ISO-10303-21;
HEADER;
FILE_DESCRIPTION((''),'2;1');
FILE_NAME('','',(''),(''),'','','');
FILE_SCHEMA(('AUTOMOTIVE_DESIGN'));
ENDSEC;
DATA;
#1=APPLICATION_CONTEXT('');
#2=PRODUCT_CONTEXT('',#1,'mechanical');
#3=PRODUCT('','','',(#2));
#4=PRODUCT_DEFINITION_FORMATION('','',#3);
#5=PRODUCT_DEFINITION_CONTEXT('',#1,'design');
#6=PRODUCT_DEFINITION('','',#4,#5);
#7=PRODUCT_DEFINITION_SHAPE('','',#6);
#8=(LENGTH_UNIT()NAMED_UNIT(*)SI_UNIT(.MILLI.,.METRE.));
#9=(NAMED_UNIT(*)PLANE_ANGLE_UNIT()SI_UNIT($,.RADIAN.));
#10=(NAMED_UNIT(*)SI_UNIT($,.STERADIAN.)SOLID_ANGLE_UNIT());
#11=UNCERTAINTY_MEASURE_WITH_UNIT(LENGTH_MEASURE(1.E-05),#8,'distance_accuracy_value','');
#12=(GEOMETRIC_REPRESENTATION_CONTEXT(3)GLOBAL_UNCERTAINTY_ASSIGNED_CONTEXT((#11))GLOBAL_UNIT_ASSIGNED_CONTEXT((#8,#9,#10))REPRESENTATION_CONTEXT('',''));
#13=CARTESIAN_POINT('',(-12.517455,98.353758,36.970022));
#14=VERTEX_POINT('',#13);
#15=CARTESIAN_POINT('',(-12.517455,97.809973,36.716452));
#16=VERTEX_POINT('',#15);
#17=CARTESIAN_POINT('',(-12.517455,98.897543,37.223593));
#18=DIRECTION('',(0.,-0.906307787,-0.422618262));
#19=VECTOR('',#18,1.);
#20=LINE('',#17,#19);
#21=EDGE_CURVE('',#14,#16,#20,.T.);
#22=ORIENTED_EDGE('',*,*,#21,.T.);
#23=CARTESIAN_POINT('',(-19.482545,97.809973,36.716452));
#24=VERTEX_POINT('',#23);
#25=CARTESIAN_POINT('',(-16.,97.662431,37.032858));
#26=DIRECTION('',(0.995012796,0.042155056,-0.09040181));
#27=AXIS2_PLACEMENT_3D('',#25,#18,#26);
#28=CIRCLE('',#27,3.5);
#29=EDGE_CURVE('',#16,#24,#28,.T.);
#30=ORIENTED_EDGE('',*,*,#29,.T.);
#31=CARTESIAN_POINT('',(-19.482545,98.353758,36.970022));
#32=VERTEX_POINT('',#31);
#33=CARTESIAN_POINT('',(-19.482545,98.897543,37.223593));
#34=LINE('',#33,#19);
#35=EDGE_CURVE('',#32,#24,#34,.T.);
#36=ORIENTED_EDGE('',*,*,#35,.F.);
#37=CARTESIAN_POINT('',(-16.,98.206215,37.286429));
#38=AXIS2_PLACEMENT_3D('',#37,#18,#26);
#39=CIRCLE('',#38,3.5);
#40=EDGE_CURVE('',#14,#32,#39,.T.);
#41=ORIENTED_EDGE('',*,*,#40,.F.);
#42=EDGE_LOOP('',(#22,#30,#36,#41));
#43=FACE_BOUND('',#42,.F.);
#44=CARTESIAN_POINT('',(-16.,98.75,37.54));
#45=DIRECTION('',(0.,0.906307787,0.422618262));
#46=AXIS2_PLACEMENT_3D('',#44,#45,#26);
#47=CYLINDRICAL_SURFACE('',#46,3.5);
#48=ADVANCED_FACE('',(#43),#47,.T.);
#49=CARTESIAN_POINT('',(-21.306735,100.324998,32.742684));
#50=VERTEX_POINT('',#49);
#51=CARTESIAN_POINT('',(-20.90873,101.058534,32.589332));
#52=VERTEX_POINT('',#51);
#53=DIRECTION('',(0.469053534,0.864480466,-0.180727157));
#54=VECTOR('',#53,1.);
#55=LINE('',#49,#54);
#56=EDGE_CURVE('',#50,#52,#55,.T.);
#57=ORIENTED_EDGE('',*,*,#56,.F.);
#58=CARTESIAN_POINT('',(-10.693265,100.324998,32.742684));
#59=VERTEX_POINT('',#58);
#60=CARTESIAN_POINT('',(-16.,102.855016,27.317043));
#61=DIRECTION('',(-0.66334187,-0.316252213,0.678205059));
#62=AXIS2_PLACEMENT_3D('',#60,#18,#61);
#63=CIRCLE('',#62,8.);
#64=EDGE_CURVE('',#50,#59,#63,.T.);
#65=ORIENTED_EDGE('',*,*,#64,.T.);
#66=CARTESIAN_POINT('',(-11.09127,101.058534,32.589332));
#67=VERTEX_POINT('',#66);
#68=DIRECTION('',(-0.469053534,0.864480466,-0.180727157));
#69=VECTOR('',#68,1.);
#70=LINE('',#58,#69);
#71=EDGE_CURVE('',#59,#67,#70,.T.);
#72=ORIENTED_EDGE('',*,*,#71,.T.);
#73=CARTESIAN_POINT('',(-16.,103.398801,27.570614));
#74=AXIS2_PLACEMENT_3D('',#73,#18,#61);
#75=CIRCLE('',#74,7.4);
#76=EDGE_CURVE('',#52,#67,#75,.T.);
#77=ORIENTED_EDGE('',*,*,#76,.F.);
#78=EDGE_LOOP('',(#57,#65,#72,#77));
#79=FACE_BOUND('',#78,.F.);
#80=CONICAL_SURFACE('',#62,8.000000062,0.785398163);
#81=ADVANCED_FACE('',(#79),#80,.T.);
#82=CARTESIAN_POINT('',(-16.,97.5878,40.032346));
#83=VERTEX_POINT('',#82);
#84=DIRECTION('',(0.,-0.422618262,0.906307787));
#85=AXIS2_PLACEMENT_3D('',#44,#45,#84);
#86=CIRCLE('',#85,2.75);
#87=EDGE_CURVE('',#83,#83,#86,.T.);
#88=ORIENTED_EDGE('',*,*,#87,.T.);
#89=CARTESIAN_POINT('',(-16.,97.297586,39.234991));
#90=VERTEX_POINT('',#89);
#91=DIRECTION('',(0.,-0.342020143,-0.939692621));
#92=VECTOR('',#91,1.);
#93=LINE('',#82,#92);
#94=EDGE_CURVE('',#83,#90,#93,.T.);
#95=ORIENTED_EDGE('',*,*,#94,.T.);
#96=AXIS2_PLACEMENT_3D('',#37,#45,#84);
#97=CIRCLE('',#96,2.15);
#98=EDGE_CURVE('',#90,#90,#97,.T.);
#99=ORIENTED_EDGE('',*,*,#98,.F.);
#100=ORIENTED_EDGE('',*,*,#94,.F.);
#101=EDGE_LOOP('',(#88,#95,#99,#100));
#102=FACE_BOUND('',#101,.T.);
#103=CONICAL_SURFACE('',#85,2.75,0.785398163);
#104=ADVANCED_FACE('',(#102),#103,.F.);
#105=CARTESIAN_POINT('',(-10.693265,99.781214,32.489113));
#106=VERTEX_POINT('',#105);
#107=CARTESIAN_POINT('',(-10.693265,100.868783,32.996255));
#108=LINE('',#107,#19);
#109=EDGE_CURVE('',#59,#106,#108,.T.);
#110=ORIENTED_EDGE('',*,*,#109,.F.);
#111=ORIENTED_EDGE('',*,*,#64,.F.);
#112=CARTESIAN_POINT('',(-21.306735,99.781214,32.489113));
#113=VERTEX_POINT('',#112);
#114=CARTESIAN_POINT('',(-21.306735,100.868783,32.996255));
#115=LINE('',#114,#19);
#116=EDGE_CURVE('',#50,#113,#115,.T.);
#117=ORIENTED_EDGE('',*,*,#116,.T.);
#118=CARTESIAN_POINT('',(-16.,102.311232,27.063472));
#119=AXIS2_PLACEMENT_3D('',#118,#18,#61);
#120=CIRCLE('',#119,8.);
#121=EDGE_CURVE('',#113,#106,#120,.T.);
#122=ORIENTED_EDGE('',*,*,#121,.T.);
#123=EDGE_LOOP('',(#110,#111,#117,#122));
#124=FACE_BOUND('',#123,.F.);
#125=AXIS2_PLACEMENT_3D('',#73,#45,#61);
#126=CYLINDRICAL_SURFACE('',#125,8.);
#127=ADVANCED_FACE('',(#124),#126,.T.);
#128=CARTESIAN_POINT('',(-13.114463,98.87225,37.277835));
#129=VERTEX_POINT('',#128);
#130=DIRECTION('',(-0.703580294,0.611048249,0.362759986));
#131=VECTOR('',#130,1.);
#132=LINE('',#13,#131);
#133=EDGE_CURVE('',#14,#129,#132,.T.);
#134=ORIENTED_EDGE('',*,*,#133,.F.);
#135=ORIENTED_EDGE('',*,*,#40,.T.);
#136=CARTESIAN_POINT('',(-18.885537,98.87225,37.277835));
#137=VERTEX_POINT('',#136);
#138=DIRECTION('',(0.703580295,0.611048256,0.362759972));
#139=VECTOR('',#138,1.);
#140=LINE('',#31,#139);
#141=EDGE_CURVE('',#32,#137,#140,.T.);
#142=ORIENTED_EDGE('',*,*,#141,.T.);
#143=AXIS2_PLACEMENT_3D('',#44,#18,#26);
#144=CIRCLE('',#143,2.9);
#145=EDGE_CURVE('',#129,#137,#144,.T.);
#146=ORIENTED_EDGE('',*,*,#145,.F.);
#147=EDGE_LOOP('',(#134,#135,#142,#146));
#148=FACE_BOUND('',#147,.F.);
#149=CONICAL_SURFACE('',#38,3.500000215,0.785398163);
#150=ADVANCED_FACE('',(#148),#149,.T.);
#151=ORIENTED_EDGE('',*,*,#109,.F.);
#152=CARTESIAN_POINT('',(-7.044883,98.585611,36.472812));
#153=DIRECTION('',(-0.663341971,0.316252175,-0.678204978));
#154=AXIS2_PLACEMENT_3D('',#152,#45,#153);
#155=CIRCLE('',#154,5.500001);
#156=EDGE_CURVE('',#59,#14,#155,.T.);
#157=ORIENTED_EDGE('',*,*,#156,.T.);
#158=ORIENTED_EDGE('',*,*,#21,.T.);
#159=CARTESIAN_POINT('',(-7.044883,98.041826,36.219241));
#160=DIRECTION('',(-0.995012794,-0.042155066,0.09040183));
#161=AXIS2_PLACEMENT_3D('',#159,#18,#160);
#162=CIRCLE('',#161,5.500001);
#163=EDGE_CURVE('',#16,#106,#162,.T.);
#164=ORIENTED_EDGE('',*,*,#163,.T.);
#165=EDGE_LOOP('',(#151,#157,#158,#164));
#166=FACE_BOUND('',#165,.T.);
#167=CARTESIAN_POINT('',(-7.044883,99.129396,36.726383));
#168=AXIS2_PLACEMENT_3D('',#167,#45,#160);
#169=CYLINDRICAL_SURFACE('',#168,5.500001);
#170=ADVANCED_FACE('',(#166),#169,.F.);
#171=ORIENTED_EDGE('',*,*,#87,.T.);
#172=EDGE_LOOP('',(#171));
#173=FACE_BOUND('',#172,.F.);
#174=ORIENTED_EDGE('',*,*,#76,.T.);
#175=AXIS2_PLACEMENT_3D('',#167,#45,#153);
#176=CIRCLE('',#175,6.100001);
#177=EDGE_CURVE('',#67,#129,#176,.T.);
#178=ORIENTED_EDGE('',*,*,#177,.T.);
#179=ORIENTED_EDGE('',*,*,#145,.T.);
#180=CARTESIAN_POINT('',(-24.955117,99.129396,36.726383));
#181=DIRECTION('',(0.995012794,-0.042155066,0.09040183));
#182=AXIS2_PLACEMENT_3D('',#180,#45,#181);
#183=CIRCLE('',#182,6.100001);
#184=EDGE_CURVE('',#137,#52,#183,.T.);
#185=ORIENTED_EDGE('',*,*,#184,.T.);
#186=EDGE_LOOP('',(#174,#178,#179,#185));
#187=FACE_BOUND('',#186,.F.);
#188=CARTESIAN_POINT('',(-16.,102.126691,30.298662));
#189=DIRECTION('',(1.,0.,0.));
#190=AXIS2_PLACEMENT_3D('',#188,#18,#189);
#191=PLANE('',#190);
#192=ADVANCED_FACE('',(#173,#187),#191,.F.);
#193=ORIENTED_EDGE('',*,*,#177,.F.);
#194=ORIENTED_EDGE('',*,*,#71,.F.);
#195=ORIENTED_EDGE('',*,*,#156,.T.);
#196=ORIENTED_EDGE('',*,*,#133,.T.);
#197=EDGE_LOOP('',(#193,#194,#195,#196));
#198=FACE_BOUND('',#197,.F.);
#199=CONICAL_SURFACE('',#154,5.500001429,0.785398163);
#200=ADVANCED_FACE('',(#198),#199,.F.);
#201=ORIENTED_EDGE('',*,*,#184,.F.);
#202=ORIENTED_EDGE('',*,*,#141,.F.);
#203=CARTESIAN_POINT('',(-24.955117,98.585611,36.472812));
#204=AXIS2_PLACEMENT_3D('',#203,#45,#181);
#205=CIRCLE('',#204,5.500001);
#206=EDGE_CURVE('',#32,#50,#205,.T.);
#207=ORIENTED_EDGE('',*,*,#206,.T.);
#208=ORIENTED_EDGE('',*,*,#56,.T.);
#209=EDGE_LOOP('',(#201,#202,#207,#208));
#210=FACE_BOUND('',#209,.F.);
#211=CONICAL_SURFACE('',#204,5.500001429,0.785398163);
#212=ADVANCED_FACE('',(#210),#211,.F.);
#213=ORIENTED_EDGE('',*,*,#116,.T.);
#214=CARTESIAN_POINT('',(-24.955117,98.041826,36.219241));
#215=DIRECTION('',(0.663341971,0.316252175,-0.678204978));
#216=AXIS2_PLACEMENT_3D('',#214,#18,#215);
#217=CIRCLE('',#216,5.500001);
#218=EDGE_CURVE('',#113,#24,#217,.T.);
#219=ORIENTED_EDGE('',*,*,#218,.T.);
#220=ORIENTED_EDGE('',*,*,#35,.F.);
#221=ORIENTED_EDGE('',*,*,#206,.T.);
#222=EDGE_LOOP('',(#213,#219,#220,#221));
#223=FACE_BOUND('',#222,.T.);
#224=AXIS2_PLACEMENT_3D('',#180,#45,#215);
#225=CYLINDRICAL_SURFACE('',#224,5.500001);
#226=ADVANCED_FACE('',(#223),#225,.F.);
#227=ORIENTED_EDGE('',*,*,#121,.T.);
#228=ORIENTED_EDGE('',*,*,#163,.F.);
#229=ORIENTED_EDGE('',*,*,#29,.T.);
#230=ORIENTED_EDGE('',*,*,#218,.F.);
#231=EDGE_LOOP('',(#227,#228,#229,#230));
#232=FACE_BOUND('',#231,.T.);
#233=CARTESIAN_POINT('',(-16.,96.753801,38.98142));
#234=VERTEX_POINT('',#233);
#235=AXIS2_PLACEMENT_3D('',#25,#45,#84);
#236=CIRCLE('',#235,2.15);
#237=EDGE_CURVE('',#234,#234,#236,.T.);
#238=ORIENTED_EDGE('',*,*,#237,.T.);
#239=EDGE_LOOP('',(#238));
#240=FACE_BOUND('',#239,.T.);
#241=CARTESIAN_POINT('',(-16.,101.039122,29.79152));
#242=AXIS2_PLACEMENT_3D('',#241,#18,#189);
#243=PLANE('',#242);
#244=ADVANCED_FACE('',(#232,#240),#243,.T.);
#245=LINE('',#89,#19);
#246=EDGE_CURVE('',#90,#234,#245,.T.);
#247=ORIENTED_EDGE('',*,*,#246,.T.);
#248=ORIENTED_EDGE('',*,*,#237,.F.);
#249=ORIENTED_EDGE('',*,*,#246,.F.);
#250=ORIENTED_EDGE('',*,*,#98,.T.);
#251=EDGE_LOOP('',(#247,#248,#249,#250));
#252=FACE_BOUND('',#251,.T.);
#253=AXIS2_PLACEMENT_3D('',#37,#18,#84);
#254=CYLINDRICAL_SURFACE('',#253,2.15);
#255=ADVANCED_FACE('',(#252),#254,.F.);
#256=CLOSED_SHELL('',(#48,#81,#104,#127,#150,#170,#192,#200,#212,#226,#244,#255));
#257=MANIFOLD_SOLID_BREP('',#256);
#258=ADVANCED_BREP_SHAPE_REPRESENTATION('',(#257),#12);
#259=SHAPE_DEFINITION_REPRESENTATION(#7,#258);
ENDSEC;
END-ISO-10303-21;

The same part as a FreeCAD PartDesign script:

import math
import FreeCAD as App
import Part
import Sketcher

V = App.Vector
Q = App.Units.Quantity


def edges_at(feature, points):
    """Names of the edges that pass closest to the given points."""
    edges = feature.Shape.Edges
    near = lambda p: min(range(len(edges)), key=lambda i: edges[i].distToShape(Part.Vertex(*p))[0])
    return sorted({f"Edge{near(p) + 1}" for p in points})

doc = App.newDocument("Part")
params = doc.addObject("Spreadsheet::Sheet", "Params")
for row, (alias, value) in enumerate([
    ("sketch1_radius", "8 mm"),
    ("sketch1_radius2", "5.500001 mm"),
    ("sketch1_radius3", "3.5 mm"),
    ("pad1_length", "1.2 mm"),
    ("sketch2_width", "0.6 mm"),
    ("sketch2_width2", "1.2 mm"),
    ("sketch2_height", "2.15 mm"),
    ("groove_angle", "360 deg"),
    ("chamfer_size", "0.6 mm"),
], start=1):
    params.set(f"A{row}", alias)
    params.set(f"B{row}", "=" + value)
    params.setAlias(f"B{row}", alias)

body = doc.addObject("PartDesign::Body", "Body")

# Sketch on XZ plane
sketch1 = doc.addObject("Sketcher::SketchObject", "Sketch")
body.addObject(sketch1)
sketch1.AttachmentSupport = (doc.XZ_Plane, [""])
sketch1.MapMode = "FlatFace"
sketch1.addGeometry([
    Part.ArcOfCircle(Part.Circle(V(0, -11, 0), V(0, 0, 1), 8), math.radians(132), math.radians(408)),
    Part.ArcOfCircle(Part.Circle(V(9, -0.9, 0), V(0, 0, 1), 5.5), math.radians(174), math.radians(228)),
    Part.ArcOfCircle(Part.Circle(V(0, 0, 0), V(0, 0, 1), 3.5), math.radians(-6), math.radians(186)),
    Part.ArcOfCircle(Part.Circle(V(-9, -0.9, 0), V(0, 0, 1), 5.5), math.radians(-48), math.radians(6)),
], False)
sketch1.addConstraint([
    Sketcher.Constraint("Tangent", 0, 2, 1, 2),
    Sketcher.Constraint("Tangent", 1, 1, 2, 1),
    Sketcher.Constraint("Tangent", 2, 2, 3, 2),
    Sketcher.Constraint("Tangent", 3, 1, 0, 1),
    Sketcher.Constraint("Coincident", 2, 3, -1, 1),
    Sketcher.Constraint("Equal", 1, 3),
    Sketcher.Constraint("PointOnObject", 0, 3, -2),
    Sketcher.Constraint("Radius", 0, Q("8 mm")),
    Sketcher.Constraint("Radius", 1, Q("5.500001 mm")),
    Sketcher.Constraint("Radius", 2, Q("3.5 mm")),
    Sketcher.Constraint("DistanceY", 0, 3, -1, 1, Q("11 mm")),
])
sketch1.setExpression("Constraints[7]", "Params.sketch1_radius")
sketch1.setExpression("Constraints[8]", "Params.sketch1_radius2")
sketch1.setExpression("Constraints[9]", "Params.sketch1_radius3")
pad1 = doc.addObject("PartDesign::Pad", "Pad")
body.addObject(pad1)
pad1.Profile = sketch1
pad1.setExpression("Length", "Params.pad1_length")

# Sketch on YZ plane
sketch2 = doc.addObject("Sketcher::SketchObject", "Sketch001")
body.addObject(sketch2)
sketch2.AttachmentSupport = (doc.YZ_Plane, [""])
sketch2.MapMode = "FlatFace"
sketch2.addGeometry([
    Part.LineSegment(V(0, 2.8, 0), V(-0.6, 2.1, 0)),  # 0
    Part.LineSegment(V(-0.6, 2.1, 0), V(-1.2, 2.1, 0)),  # 1
    Part.LineSegment(V(-1.2, 2.1, 0), V(-1.2, 0, 0)),  # 2
    Part.LineSegment(V(-1.2, 0, 0), V(0, 0, 0)),  # 3
    Part.LineSegment(V(0, 0, 0), V(0, 2.8, 0)),  # 4
], False)
sketch2.addConstraint([
    Sketcher.Constraint("Coincident", 0, 2, 1, 1),
    Sketcher.Constraint("Coincident", 1, 2, 2, 1),
    Sketcher.Constraint("Coincident", 2, 2, 3, 1),
    Sketcher.Constraint("Coincident", 3, 2, 4, 1),
    Sketcher.Constraint("Coincident", 4, 2, 0, 1),
    Sketcher.Constraint("Horizontal", 1),
    Sketcher.Constraint("Vertical", 2),
    Sketcher.Constraint("Horizontal", 3),
    Sketcher.Constraint("Vertical", 4),
    Sketcher.Constraint("Coincident", 3, 2, -1, 1),
    Sketcher.Constraint("Angle", 0, Q("-135 deg")),
    Sketcher.Constraint("DistanceX", 1, 2, 1, 1, Q("0.6 mm")),
    Sketcher.Constraint("DistanceX", 3, 1, 3, 2, Q("1.2 mm")),
    Sketcher.Constraint("DistanceY", 2, 2, 2, 1, Q("2.15 mm")),
])
sketch2.setExpression("Constraints[11]", "Params.sketch2_width")
sketch2.setExpression("Constraints[12]", "Params.sketch2_width2")
sketch2.setExpression("Constraints[13]", "Params.sketch2_height")
groove = doc.addObject("PartDesign::Groove", "Groove")
body.addObject(groove)
groove.Profile = sketch2
groove.ReferenceAxis = (sketch2, ["H_Axis"])
groove.setExpression("Angle", "Params.groove_angle")
doc.recompute()

chamfer = doc.addObject("PartDesign::Chamfer", "Chamfer")
body.addObject(chamfer)
chamfer.Base = (groove, edges_at(groove, [(0, 0, -19)]))
chamfer.setExpression("Size", "Params.chamfer_size")
body2 = doc.addObject("PartDesign::Body", "Body001")
doc.recompute()

body.Placement = App.Placement(V(-16, 98.75, 37.54), App.Rotation(V(1, 0, 0), 25))
boolean = doc.addObject("PartDesign::Boolean", "Boolean")
body2.addObject(boolean)
boolean.Type = "Fuse"
boolean.addObjects([body])

doc.recompute()
